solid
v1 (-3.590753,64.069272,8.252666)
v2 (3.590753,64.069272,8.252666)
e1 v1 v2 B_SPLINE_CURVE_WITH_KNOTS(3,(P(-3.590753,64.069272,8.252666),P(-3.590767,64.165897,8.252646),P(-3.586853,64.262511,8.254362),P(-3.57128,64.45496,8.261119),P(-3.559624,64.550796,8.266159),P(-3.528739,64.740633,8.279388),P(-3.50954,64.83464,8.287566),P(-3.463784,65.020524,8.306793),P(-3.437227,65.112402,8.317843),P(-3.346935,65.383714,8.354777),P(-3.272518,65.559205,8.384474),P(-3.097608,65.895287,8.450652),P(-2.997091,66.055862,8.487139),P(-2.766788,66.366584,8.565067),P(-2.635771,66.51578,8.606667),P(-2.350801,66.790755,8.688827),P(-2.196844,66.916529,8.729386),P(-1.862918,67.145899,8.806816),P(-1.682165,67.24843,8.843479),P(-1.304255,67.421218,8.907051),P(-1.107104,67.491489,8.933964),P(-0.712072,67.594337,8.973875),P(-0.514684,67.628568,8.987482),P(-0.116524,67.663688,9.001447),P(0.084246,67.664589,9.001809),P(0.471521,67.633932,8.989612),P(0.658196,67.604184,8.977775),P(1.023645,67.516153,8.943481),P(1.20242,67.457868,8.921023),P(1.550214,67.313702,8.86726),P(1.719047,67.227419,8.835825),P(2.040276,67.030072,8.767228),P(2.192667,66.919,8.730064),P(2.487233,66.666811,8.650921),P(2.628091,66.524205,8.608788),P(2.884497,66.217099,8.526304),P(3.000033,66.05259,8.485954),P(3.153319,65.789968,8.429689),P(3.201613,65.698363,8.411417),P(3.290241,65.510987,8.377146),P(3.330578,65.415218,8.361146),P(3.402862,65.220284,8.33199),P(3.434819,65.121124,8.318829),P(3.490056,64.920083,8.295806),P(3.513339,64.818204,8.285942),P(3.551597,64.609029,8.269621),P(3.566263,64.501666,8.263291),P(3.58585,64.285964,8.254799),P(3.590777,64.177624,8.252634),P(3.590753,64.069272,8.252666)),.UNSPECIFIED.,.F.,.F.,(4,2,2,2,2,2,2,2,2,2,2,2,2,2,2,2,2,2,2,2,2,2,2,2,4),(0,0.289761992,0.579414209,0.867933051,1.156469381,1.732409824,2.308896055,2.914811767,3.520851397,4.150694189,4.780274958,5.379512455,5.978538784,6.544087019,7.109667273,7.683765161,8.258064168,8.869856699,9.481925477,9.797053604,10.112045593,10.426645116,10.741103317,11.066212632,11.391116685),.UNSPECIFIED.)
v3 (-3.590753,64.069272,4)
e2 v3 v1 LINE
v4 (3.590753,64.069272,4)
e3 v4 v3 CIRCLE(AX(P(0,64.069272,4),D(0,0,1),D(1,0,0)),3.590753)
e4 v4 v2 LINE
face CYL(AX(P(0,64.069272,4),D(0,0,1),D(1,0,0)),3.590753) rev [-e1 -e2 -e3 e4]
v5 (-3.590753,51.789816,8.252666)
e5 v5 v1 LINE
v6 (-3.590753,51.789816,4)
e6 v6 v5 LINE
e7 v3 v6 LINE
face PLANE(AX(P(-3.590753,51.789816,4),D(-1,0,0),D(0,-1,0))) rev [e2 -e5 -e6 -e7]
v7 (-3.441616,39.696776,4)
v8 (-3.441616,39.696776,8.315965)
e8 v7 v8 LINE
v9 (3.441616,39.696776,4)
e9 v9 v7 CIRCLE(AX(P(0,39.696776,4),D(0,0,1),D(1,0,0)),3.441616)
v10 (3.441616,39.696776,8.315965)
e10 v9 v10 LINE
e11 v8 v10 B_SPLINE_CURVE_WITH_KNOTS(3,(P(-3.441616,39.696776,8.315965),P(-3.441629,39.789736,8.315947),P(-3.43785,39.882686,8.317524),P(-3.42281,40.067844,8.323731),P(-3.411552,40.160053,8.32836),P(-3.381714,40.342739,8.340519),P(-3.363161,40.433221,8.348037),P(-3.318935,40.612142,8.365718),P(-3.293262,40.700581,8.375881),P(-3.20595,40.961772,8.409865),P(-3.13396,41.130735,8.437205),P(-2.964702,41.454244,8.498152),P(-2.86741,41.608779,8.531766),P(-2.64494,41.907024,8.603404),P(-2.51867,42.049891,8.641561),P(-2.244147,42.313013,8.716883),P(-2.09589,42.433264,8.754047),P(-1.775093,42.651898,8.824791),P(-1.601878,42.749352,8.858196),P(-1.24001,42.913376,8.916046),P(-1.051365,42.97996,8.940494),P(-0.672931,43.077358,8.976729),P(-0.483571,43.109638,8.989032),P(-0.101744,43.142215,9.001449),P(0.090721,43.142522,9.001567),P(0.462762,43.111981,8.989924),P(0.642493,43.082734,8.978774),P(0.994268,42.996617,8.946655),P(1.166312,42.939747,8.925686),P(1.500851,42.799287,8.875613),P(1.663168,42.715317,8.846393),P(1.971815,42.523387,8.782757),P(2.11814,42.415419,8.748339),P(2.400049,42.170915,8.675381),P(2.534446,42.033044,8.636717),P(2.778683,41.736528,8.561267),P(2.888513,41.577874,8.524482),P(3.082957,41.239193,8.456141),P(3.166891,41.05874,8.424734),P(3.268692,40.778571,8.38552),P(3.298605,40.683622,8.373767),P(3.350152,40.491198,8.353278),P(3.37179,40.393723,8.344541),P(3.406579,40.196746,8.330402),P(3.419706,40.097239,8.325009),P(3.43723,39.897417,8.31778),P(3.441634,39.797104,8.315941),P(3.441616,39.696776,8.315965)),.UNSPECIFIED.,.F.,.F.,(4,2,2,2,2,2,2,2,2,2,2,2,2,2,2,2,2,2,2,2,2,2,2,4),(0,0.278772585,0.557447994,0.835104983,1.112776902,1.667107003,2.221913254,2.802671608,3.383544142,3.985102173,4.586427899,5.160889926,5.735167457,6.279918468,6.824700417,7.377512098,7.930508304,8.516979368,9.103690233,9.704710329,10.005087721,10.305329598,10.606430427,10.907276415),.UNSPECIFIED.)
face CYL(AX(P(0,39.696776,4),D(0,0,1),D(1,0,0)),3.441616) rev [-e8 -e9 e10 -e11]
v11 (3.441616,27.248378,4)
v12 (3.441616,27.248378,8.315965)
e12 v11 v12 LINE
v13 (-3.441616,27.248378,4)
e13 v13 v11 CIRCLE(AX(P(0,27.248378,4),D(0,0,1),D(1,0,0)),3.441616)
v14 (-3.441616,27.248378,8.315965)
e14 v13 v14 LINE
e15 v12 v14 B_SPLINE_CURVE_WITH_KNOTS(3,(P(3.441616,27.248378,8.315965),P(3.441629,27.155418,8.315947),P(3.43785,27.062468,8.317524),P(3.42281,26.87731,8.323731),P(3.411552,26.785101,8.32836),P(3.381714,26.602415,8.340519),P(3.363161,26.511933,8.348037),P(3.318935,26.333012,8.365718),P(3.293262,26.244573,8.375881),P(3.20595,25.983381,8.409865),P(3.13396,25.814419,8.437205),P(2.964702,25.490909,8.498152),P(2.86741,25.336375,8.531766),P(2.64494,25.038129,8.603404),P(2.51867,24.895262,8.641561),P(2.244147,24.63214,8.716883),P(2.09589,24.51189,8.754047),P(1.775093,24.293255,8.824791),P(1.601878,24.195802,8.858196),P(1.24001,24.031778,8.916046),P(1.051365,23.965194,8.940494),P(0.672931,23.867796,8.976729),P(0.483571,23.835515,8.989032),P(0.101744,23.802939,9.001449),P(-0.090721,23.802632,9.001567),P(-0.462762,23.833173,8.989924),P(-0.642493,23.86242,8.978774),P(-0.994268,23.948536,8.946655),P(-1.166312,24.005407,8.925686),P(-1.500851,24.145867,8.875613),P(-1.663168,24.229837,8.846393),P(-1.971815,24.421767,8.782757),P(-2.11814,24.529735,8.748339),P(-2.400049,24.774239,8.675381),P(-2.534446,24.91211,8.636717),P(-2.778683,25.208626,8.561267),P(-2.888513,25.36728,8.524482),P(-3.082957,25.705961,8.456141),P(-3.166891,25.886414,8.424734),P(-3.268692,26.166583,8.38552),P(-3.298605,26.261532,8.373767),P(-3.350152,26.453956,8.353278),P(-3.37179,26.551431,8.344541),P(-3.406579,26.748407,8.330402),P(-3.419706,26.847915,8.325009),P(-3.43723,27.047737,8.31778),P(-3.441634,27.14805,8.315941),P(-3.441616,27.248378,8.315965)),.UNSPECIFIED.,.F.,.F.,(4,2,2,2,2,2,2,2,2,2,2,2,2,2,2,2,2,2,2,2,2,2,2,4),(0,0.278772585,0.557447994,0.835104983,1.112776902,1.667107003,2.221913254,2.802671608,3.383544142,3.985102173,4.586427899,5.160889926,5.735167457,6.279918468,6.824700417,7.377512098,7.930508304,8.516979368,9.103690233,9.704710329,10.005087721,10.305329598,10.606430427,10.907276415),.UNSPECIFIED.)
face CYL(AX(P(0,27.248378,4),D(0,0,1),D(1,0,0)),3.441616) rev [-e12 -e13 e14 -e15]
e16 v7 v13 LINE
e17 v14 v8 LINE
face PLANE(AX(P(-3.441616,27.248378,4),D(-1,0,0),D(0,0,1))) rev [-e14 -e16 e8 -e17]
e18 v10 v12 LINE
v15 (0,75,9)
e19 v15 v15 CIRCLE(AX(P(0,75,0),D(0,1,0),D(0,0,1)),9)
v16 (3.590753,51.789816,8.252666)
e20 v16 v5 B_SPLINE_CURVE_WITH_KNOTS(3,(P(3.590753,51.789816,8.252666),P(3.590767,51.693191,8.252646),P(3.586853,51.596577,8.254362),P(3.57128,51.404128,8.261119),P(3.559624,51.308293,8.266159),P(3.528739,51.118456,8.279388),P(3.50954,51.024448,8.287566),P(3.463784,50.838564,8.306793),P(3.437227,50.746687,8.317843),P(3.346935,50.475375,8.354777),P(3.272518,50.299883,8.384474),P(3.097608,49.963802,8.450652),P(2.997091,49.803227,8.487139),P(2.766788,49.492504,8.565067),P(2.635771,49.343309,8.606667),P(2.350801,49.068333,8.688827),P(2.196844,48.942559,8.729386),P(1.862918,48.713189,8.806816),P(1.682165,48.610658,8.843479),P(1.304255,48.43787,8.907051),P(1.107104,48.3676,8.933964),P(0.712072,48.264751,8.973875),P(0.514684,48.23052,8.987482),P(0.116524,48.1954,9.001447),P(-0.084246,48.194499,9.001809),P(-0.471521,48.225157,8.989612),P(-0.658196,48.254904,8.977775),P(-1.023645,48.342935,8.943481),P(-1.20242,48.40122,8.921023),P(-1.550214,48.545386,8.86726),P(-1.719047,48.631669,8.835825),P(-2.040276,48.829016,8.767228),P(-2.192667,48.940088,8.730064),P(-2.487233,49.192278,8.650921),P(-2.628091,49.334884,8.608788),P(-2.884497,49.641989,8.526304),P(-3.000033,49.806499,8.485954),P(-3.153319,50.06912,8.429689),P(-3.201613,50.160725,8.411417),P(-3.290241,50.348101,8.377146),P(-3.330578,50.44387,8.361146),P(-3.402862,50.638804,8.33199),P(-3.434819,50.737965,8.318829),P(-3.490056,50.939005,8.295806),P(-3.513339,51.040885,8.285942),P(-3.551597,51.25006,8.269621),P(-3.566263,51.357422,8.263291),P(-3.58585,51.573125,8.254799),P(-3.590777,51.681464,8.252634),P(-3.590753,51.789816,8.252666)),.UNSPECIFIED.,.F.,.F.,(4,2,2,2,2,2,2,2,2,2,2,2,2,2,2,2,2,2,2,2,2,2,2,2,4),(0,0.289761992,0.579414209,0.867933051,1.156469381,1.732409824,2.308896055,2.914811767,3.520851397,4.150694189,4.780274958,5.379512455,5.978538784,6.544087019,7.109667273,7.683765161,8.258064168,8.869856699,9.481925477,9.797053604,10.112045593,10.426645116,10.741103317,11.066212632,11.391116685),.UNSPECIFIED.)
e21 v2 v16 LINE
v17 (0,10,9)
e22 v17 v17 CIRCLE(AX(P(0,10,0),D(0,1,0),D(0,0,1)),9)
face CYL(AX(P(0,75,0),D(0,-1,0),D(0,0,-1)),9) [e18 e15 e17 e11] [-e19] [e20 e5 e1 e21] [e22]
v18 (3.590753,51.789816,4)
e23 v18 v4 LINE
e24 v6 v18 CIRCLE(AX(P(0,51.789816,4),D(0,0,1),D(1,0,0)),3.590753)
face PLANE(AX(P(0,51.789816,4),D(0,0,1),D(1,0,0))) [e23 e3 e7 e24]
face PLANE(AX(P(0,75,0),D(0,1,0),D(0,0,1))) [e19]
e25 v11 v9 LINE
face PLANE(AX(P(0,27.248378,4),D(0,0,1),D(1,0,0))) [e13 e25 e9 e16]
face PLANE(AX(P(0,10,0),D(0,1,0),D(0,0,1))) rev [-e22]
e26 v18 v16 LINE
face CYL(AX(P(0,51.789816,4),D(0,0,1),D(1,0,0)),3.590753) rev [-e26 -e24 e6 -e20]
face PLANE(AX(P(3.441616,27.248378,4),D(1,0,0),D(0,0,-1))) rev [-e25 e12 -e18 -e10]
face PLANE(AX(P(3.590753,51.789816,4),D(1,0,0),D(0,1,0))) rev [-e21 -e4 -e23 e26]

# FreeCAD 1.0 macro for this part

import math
import FreeCAD as App
import Part
import Sketcher

doc = App.newDocument("Part")
body = doc.addObject("PartDesign::Body", "Body")

sketch1 = doc.addObject("Sketcher::SketchObject", "Sketch")
body.addObject(sketch1)
sketch1.AttachmentSupport = (doc.XZ_Plane, [""])
sketch1.MapMode = "FlatFace"
sketch1.AttachmentOffset = App.Placement(App.Vector(0, 0, -10), App.Rotation())
sketch1.addGeometry(Part.Circle(App.Vector(0, 0, 0), App.Vector(0, 0, 1), 9), False)
sketch1.addConstraint([
    Sketcher.Constraint("Coincident", 0, 3, -1, 1),
    Sketcher.Constraint("Diameter", 0, 18.0),
])
pad1 = doc.addObject("PartDesign::Pad", "Pad")
body.addObject(pad1)
pad1.Profile = sketch1
pad1.Length = 65
pad1.Reversed = True

sketch2 = doc.addObject("Sketcher::SketchObject", "Sketch001")
body.addObject(sketch2)
sketch2.AttachmentSupport = (doc.XY_Plane, [""])
sketch2.MapMode = "FlatFace"
sketch2.AttachmentOffset = App.Placement(App.Vector(0, 0, 9), App.Rotation())
sketch2.addGeometry([
    Part.LineSegment(App.Vector(-3.4, 39.7, 0), App.Vector(-3.4, 27.2, 0)),
    Part.ArcOfCircle(Part.Circle(App.Vector(0, 27.2, 0), App.Vector(0, 0, 1), 3.4), math.radians(180), math.radians(360)),
    Part.LineSegment(App.Vector(3.4, 27.2, 0), App.Vector(3.4, 39.7, 0)),
    Part.ArcOfCircle(Part.Circle(App.Vector(0, 39.7, 0), App.Vector(0, 0, 1), 3.4), math.radians(0), math.radians(180)),
], False)
sketch2.addConstraint([
    Sketcher.Constraint("Tangent", 0, 2, 1, 1),
    Sketcher.Constraint("Tangent", 1, 2, 2, 1),
    Sketcher.Constraint("Tangent", 2, 2, 3, 1),
    Sketcher.Constraint("Tangent", 3, 2, 0, 1),
    Sketcher.Constraint("Vertical", 0),
    Sketcher.Constraint("Vertical", 2),
    Sketcher.Constraint("PointOnObject", 1, 3, -2),
    Sketcher.Constraint("DistanceY", 0, 2, 0, 1, 12.448399),
    Sketcher.Constraint("Radius", 1, 3.441616),
    Sketcher.Constraint("DistanceY", -1, 1, 1, 3, 27.248378),
])
pocket1 = doc.addObject("PartDesign::Pocket", "Pocket")
body.addObject(pocket1)
pocket1.Profile = sketch2
pocket1.Length = 5

sketch3 = doc.addObject("Sketcher::SketchObject", "Sketch002")
body.addObject(sketch3)
sketch3.AttachmentSupport = (doc.XY_Plane, [""])
sketch3.MapMode = "FlatFace"
sketch3.AttachmentOffset = App.Placement(App.Vector(0, 0, 9), App.Rotation())
sketch3.addGeometry([
    Part.LineSegment(App.Vector(-3.6, 64.1, 0), App.Vector(-3.6, 51.8, 0)),
    Part.ArcOfCircle(Part.Circle(App.Vector(0, 51.8, 0), App.Vector(0, 0, 1), 3.6), math.radians(180), math.radians(360)),
    Part.LineSegment(App.Vector(3.6, 51.8, 0), App.Vector(3.6, 64.1, 0)),
    Part.ArcOfCircle(Part.Circle(App.Vector(0, 64.1, 0), App.Vector(0, 0, 1), 3.6), math.radians(0), math.radians(180)),
], False)
sketch3.addConstraint([
    Sketcher.Constraint("Tangent", 0, 2, 1, 1),
    Sketcher.Constraint("Tangent", 1, 2, 2, 1),
    Sketcher.Constraint("Tangent", 2, 2, 3, 1),
    Sketcher.Constraint("Tangent", 3, 2, 0, 1),
    Sketcher.Constraint("Vertical", 0),
    Sketcher.Constraint("Vertical", 2),
    Sketcher.Constraint("PointOnObject", 1, 3, -2),
    Sketcher.Constraint("Radius", 1, 3.590753),
    Sketcher.Constraint("DistanceY", 0, 2, 0, 1, 12.279456),
    Sketcher.Constraint("DistanceY", -1, 1, 1, 3, 51.789816),
])
pocket2 = doc.addObject("PartDesign::Pocket", "Pocket001")
body.addObject(pocket2)
pocket2.Profile = sketch3
pocket2.Length = 5

doc.recompute()
